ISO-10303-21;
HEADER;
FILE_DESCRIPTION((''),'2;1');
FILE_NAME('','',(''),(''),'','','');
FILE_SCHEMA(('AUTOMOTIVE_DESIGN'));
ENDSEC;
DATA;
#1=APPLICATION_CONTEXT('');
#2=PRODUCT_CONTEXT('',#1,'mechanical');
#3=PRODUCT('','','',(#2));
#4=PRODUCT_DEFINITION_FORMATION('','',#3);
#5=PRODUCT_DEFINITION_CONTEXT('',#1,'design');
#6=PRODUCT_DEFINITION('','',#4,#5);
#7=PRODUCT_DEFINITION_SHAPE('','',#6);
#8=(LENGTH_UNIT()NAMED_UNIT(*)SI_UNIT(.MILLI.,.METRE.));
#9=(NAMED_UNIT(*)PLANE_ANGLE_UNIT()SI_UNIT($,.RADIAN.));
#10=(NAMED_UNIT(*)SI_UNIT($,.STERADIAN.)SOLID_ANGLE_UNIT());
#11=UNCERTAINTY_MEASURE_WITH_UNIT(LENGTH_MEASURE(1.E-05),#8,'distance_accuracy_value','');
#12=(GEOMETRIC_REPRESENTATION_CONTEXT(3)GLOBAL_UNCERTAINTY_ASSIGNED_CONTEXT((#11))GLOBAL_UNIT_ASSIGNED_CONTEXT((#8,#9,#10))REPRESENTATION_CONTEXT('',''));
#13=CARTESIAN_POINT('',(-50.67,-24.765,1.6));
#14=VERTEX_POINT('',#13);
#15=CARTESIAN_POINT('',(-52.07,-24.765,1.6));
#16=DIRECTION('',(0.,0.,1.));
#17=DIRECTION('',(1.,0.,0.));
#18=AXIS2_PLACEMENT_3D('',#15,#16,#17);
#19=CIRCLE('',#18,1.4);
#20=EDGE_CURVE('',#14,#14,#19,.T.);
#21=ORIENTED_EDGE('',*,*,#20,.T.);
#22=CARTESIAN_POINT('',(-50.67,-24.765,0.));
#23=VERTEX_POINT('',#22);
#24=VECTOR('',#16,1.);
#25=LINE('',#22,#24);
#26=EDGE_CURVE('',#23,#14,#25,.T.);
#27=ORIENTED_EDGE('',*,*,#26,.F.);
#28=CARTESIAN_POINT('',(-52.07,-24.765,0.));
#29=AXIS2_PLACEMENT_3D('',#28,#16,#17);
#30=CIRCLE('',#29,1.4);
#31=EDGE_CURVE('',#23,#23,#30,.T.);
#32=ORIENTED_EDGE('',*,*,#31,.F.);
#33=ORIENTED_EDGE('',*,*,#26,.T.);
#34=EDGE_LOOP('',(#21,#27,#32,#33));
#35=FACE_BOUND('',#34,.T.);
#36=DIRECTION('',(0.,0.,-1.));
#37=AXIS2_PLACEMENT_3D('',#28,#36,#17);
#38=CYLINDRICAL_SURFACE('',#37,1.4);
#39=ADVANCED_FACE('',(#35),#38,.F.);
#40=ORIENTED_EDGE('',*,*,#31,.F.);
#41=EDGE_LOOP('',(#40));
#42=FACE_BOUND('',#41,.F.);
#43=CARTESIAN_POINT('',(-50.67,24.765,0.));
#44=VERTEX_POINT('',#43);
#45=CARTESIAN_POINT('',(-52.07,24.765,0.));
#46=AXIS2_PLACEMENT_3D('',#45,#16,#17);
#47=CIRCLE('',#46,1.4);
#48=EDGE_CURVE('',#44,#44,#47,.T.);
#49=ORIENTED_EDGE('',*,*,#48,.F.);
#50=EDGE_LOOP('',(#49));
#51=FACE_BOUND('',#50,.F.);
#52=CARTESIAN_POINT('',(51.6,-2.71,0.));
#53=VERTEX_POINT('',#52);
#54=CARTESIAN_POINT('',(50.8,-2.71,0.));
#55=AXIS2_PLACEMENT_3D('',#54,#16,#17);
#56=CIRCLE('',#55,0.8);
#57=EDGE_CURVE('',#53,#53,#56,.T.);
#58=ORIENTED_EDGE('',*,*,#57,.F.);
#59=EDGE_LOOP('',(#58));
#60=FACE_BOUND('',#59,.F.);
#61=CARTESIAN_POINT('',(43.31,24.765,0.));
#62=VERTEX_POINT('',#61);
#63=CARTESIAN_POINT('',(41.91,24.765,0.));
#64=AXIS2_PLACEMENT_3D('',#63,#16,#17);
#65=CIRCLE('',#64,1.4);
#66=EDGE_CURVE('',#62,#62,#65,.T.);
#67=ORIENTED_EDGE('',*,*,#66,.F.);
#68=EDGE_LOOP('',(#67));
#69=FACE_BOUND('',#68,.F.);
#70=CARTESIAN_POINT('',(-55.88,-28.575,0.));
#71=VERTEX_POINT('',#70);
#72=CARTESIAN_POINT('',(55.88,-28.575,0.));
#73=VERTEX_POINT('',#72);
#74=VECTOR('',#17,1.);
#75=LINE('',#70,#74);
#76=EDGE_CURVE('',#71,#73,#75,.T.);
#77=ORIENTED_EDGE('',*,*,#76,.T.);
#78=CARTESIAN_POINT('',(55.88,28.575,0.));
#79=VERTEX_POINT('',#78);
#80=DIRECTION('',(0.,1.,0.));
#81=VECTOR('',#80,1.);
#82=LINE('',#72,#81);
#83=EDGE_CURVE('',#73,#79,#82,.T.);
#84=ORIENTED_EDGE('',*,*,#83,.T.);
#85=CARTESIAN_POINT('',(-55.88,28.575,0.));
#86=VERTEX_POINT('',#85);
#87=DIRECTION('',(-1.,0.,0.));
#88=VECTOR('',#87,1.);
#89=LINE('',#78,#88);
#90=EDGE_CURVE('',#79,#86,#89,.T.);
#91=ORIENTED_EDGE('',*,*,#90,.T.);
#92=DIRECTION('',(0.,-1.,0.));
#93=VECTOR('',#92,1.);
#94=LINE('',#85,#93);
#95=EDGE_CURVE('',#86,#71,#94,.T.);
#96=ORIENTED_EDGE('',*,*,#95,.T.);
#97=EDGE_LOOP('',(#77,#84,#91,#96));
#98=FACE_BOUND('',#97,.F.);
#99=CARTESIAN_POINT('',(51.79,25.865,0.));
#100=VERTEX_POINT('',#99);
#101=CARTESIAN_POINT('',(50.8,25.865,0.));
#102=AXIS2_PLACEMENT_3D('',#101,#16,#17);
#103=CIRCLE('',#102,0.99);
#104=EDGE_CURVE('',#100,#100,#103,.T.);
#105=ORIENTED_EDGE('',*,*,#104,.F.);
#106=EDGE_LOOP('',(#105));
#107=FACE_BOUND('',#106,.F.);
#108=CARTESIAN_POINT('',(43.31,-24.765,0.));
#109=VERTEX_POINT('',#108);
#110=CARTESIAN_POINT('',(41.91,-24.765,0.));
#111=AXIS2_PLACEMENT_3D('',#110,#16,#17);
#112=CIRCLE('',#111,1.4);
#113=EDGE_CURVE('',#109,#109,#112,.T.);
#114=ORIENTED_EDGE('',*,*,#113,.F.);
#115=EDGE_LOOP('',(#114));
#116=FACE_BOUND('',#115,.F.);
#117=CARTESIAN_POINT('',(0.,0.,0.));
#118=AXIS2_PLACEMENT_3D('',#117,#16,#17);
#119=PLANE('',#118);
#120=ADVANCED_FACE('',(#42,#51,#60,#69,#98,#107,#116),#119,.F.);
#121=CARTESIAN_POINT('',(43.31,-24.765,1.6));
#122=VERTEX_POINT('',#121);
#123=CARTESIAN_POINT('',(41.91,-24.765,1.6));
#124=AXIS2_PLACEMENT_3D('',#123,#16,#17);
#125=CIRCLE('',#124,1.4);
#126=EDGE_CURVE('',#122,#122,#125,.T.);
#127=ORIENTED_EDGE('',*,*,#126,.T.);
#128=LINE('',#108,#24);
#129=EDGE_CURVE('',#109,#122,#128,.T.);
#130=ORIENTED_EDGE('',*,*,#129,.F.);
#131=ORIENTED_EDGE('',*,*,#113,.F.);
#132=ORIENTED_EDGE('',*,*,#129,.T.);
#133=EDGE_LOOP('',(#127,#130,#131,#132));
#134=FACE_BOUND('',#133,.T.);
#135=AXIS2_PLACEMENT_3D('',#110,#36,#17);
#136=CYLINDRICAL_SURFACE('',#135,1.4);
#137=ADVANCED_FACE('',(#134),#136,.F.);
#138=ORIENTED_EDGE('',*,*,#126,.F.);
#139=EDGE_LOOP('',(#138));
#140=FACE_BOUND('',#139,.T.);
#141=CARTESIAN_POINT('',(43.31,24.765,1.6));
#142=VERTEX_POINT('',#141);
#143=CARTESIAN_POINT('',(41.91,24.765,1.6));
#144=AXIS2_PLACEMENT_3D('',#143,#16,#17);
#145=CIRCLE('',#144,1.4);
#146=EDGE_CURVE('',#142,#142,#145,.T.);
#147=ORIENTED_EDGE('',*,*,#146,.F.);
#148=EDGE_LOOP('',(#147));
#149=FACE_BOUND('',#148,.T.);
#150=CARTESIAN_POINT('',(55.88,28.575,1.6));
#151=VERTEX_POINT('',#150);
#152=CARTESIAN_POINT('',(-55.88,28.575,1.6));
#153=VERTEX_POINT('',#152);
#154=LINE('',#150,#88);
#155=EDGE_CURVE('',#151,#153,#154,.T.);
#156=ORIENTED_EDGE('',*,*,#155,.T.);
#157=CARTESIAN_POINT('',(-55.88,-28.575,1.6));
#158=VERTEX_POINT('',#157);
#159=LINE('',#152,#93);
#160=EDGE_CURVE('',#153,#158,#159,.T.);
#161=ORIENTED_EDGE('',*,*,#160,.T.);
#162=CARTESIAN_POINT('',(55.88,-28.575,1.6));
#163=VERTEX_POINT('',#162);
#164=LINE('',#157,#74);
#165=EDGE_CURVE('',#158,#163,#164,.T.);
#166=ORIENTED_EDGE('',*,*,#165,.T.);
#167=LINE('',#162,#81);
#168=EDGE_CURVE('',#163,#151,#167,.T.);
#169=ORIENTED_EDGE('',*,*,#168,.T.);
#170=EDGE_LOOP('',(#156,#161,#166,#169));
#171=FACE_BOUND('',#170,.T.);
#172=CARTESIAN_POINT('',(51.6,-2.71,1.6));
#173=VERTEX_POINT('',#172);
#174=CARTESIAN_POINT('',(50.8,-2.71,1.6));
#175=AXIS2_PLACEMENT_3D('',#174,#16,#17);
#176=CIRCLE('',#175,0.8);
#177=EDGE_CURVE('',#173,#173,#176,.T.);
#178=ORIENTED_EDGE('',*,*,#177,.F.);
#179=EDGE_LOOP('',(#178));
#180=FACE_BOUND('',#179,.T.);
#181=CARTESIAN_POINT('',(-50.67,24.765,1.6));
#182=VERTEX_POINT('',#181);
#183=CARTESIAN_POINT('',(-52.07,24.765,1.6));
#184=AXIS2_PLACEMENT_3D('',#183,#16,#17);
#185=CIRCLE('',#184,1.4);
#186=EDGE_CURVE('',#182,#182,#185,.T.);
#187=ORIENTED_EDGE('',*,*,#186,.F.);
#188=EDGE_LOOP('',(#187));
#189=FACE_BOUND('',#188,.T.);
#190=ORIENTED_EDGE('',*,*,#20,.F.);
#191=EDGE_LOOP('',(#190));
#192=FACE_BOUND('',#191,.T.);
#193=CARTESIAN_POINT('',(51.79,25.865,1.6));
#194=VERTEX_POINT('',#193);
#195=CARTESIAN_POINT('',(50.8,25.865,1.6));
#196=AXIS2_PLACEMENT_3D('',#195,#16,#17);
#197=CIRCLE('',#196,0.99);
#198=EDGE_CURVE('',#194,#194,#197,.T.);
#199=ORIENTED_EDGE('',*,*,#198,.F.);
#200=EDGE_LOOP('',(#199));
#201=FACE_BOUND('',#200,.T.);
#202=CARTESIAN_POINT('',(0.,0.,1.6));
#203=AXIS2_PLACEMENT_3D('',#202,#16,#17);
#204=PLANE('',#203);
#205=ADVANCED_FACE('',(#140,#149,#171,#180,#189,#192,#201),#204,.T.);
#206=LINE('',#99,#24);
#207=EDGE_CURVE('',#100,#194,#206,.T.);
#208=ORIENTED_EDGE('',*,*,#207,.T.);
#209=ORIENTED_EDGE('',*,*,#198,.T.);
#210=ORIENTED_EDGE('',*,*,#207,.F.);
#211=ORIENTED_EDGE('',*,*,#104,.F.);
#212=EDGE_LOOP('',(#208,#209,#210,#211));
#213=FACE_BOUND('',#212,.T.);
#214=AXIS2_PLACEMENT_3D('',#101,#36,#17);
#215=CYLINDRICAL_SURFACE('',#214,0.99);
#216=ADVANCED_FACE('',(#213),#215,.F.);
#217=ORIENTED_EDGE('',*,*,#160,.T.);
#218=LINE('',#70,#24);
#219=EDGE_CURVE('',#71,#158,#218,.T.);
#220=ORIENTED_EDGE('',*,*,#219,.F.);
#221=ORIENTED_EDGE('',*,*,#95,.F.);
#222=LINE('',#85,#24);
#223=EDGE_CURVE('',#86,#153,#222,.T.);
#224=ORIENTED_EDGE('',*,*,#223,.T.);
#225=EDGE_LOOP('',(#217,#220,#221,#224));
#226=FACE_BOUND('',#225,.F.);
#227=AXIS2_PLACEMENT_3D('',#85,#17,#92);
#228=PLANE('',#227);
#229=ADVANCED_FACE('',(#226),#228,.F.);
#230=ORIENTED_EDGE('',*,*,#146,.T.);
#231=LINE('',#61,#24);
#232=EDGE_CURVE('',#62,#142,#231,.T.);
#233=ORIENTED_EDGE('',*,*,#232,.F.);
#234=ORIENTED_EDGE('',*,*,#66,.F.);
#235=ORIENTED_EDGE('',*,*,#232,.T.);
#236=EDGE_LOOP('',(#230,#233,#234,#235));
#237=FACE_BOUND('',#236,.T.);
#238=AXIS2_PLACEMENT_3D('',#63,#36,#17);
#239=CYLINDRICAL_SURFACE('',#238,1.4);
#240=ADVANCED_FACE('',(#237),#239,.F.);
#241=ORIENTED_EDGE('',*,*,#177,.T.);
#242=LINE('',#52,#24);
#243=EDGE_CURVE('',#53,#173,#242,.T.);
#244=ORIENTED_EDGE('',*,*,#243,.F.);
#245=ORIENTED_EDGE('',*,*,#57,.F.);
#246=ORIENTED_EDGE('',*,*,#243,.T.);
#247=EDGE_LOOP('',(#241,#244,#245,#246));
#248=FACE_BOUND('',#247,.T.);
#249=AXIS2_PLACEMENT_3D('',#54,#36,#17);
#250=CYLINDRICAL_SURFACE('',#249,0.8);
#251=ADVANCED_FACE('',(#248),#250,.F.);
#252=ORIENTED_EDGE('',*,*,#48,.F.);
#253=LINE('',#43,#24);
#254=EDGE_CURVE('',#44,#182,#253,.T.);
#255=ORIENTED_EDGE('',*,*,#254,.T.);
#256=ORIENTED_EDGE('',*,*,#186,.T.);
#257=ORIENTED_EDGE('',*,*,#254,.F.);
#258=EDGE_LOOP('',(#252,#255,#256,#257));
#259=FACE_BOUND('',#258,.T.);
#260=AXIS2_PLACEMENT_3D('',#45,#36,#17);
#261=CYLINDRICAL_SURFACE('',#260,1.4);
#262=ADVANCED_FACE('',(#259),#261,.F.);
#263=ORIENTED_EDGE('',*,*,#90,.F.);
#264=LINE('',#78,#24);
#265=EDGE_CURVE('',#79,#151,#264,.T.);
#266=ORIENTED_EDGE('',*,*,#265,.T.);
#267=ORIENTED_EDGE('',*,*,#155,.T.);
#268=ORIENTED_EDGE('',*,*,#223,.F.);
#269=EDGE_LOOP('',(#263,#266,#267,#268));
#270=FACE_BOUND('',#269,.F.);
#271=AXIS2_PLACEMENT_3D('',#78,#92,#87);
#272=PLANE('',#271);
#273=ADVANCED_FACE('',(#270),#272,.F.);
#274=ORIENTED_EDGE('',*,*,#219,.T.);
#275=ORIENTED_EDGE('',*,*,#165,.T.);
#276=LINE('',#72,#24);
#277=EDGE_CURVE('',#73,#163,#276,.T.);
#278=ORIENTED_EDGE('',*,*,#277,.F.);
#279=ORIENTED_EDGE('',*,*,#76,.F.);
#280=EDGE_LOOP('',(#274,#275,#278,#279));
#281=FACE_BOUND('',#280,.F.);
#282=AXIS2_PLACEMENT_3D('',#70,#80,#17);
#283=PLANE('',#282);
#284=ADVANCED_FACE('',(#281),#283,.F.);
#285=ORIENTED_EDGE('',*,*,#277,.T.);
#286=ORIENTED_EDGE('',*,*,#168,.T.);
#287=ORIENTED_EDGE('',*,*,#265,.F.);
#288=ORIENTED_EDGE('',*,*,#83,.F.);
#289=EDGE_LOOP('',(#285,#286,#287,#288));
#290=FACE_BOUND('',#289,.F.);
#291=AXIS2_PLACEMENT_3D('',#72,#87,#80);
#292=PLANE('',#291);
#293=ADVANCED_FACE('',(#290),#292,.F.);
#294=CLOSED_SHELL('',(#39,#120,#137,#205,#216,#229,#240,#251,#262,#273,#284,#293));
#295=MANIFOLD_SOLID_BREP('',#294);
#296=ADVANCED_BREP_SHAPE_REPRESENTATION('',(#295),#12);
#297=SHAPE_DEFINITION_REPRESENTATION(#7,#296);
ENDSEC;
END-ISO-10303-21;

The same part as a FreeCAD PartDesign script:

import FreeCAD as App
import Part
import Sketcher

V = App.Vector
Q = App.Units.Quantity

doc = App.newDocument("Part")
body = doc.addObject("PartDesign::Body", "Body")

# Sketch on XY plane
sketch1 = body.newObject("Sketcher::SketchObject", "Sketch")
sketch1.AttachmentSupport = (doc.getObject("XY_Plane"), [""])
sketch1.MapMode = "FlatFace"
sketch1.addGeometry([
    Part.LineSegment(V(-55.9, 28.6, 0), V(-55.9, -28.6, 0)),  # 0
    Part.LineSegment(V(-55.9, -28.6, 0), V(55.9, -28.6, 0)),  # 1
    Part.LineSegment(V(55.9, -28.6, 0), V(55.9, 28.6, 0)),  # 2
    Part.LineSegment(V(55.9, 28.6, 0), V(-55.9, 28.6, 0)),  # 3
    Part.Circle(V(-52.1, -24.8, 0), V(0, 0, 1), 1.4),  # 4
    Part.Circle(V(41.9, -24.8, 0), V(0, 0, 1), 1.4),  # 5
    Part.Circle(V(50.8, -2.7, 0), V(0, 0, 1), 0.8),  # 6
    Part.Circle(V(-52.1, 24.8, 0), V(0, 0, 1), 1.4),  # 7
    Part.Circle(V(41.9, 24.8, 0), V(0, 0, 1), 1.4),  # 8
    Part.Circle(V(50.8, 25.9, 0), V(0, 0, 1), 1),  # 9
], False)
sketch1.addConstraint([
    Sketcher.Constraint("Coincident", 0, 2, 1, 1),
    Sketcher.Constraint("Coincident", 1, 2, 2, 1),
    Sketcher.Constraint("Coincident", 2, 2, 3, 1),
    Sketcher.Constraint("Coincident", 3, 2, 0, 1),
    Sketcher.Constraint("Vertical", 0),
    Sketcher.Constraint("Horizontal", 1),
    Sketcher.Constraint("Vertical", 2),
    Sketcher.Constraint("Horizontal", 3),
    Sketcher.Constraint("Equal", 4, 5),
    Sketcher.Constraint("Equal", 5, 7),
    Sketcher.Constraint("Equal", 7, 8),
    Sketcher.Constraint("Symmetric", 0, 2, 2, 2, -1, 1),
    Sketcher.Constraint("Symmetric", 4, 3, 7, 3, -1),
    Sketcher.Constraint("Symmetric", 5, 3, 8, 3, -1),
    Sketcher.Constraint("Horizontal", 4, 3, 5, 3),
    Sketcher.Constraint("Vertical", 6, 3, 9, 3),
    Sketcher.Constraint("Diameter", 6, Q("0.063 in")),
    Sketcher.Constraint("DistanceX", 1, 1, 1, 2, Q("4.4 in")),
    Sketcher.Constraint("DistanceY", 0, 2, 0, 1, Q("2.25 in")),
    Sketcher.Constraint("DistanceX", 6, 3, 1, 2, Q("0.2 in")),
    Sketcher.Constraint("Diameter", 4, 2.8),
    Sketcher.Constraint("Diameter", 9, 1.98),
    Sketcher.Constraint("DistanceY", 4, 3, 7, 3, Q("1.95 in")),
    Sketcher.Constraint("DistanceX", 0, 2, 4, 3, Q("0.15 in")),
    Sketcher.Constraint("DistanceX", 5, 3, 1, 2, Q("0.55 in")),
    Sketcher.Constraint("DistanceY", 6, 3, -1, 1, Q("0.1067 in")),
    Sketcher.Constraint("DistanceY", 9, 3, 2, 2, Q("0.1067 in")),
])
pad1 = body.newObject("PartDesign::Pad", "Pad")
pad1.Profile = sketch1
pad1.Length = Q("0.0629921 in")

doc.recompute()
